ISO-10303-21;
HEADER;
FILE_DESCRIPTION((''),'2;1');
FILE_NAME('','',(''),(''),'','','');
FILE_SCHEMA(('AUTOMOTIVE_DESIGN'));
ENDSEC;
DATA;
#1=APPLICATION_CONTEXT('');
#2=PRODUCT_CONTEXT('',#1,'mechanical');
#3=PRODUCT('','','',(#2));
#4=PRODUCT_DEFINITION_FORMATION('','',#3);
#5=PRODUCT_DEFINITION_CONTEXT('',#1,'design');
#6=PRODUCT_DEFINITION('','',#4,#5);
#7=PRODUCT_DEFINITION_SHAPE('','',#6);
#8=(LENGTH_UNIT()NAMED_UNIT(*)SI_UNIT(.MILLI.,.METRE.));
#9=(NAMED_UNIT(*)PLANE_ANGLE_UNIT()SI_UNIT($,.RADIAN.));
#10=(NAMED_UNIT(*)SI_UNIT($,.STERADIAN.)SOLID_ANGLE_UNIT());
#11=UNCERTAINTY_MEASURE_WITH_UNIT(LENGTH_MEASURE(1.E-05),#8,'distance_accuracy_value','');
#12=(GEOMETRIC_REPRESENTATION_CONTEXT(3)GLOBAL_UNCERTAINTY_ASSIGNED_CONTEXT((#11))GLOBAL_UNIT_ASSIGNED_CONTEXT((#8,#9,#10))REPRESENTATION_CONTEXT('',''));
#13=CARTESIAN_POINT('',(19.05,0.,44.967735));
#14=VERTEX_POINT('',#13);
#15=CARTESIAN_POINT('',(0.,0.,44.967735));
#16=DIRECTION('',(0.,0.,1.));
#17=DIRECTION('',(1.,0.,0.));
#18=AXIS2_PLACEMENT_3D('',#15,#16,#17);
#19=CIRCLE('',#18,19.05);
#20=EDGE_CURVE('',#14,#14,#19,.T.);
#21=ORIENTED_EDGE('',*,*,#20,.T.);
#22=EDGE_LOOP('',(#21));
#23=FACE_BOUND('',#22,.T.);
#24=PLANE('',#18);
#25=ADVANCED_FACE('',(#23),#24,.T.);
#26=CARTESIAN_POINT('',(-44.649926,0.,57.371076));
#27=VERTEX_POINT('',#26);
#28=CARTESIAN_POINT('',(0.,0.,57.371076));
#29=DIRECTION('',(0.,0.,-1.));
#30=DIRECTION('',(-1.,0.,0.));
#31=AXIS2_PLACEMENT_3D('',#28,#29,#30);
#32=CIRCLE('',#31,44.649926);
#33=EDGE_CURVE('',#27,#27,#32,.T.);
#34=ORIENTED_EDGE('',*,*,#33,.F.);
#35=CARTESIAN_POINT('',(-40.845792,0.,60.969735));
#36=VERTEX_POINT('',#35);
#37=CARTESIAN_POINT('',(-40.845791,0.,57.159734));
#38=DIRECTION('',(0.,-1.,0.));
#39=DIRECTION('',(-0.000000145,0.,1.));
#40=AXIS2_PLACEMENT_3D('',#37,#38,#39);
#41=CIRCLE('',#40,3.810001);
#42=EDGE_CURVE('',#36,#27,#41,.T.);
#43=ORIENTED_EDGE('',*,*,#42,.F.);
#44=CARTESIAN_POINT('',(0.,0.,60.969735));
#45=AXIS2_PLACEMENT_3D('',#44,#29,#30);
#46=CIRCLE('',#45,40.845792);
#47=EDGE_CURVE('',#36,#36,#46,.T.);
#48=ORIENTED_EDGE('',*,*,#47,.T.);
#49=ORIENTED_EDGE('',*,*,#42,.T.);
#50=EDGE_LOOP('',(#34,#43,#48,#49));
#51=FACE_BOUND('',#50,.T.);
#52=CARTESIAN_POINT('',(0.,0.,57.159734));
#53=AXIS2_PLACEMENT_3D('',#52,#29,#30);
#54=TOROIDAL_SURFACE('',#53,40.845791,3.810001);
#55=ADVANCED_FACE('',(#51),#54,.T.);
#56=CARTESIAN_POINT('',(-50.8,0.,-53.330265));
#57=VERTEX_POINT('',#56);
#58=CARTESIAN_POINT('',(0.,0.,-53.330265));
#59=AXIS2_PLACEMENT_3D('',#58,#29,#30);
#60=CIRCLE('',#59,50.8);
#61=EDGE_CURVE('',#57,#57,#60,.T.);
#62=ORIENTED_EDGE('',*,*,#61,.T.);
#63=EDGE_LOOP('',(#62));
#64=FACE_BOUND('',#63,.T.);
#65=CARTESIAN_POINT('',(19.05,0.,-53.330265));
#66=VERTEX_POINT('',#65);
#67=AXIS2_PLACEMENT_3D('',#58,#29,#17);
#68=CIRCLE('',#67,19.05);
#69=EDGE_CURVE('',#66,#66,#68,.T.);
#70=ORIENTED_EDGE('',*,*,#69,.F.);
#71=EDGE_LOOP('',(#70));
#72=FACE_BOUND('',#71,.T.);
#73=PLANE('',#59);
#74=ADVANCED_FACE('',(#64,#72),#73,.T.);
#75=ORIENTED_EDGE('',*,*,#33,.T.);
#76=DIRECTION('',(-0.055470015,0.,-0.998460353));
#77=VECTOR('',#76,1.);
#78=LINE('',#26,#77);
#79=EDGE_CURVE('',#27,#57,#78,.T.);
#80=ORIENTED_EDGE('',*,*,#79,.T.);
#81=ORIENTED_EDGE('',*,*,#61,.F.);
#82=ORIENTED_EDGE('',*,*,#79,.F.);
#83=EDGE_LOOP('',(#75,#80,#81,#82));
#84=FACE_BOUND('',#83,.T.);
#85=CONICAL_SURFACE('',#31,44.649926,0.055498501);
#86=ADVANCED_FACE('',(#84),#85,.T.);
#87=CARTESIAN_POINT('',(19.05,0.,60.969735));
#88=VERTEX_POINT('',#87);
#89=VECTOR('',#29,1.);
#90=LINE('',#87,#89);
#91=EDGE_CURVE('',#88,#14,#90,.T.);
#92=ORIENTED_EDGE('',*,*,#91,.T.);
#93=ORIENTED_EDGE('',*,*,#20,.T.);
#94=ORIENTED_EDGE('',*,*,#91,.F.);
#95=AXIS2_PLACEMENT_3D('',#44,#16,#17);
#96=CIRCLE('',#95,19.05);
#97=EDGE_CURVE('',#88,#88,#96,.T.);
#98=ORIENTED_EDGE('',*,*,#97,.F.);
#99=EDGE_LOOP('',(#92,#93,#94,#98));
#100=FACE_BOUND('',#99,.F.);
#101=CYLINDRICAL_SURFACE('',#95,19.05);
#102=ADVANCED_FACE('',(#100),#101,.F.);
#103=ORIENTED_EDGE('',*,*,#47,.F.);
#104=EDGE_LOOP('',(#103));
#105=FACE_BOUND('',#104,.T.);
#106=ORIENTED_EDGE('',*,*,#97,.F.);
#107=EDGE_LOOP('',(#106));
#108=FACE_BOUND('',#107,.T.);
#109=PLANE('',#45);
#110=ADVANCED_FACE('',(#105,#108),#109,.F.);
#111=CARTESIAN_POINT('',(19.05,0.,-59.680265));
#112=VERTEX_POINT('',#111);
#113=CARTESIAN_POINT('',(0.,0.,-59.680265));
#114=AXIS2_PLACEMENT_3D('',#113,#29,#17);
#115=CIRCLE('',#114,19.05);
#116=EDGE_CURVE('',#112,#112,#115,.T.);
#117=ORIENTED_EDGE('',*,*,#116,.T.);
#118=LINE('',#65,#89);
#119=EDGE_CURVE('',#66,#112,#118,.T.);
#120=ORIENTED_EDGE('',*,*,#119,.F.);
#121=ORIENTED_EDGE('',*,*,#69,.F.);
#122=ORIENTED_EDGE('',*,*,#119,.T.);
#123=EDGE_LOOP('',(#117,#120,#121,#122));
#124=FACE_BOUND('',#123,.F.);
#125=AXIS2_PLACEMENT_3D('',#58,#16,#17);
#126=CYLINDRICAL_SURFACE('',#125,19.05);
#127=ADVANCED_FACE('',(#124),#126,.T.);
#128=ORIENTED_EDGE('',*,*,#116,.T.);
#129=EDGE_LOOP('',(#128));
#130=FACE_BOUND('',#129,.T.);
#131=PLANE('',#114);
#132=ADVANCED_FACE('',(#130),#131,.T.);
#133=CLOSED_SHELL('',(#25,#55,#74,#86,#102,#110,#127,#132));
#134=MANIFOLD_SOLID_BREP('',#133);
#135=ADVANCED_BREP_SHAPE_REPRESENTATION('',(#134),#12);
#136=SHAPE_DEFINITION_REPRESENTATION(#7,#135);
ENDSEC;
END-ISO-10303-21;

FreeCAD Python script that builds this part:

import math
import FreeCAD as App
import Part
import Sketcher
from FreeCAD import Vector
Q = App.Units.Quantity

doc = App.newDocument("Part")
body = doc.addObject("PartDesign::Body", "Body")

sketch1 = body.newObject("Sketcher::SketchObject", "Sketch")
sketch1.AttachmentSupport = (doc.getObject("XZ_Plane"), [""])
sketch1.MapMode = "FlatFace"
sketch1.addGeometry([
    Part.LineSegment(Vector(0, -53.330265, 0), Vector(0, 60.969735, 0)),
    Part.LineSegment(Vector(0, 60.969735, 0), Vector(-40.845792, 60.969735, 0)),
    Part.ArcOfCircle(Part.Circle(Vector(-40.845791, 57.159734, 0), Vector(0, 0, 1), 3.810001), math.radians(90.000008), math.radians(176.820157)),
    Part.LineSegment(Vector(-44.649926, 57.371076, 0), Vector(-50.8, -53.330265, 0)),
    Part.LineSegment(Vector(-50.8, -53.330265, 0), Vector(0, -53.330265, 0)),
], False)
sketch1.addConstraint([
    Sketcher.Constraint("Coincident", 0, 2, 1, 1),
    Sketcher.Constraint("Tangent", 1, 2, 2, 1),
    Sketcher.Constraint("Tangent", 2, 2, 3, 1),
    Sketcher.Constraint("Coincident", 3, 2, 4, 1),
    Sketcher.Constraint("Coincident", 4, 2, 0, 1),
    Sketcher.Constraint("Vertical", 0),
    Sketcher.Constraint("Horizontal", 1),
    Sketcher.Constraint("Horizontal", 4),
    Sketcher.Constraint("PointOnObject", 0, 2, -2),
    Sketcher.Constraint("DistanceX", 4, 1, 4, 2, Q("2 in")),
    Sketcher.Constraint("Radius", 2, Q("0.15 in")),
    Sketcher.Constraint("DistanceY", 0, 1, 0, 2, Q("4.5 in")),
    Sketcher.Constraint("DistanceX", 1, 2, 1, 1, 40.845792),
    Sketcher.Constraint("DistanceY", -1, 1, 2, 3, 57.159734),
])
revolution = body.newObject("PartDesign::Revolution", "Revolution")
revolution.Profile = sketch1
revolution.ReferenceAxis = (sketch1, ["V_Axis"])
revolution.Angle = 360

sketch2 = body.newObject("Sketcher::SketchObject", "Sketch001")
sketch2.AttachmentSupport = (doc.getObject("XY_Plane"), [""])
sketch2.MapMode = "FlatFace"
sketch2.AttachmentOffset = App.Placement(Vector(0, 0, -53.330265), App.Rotation())
sketch2.addGeometry(Part.Circle(Vector(0, 0, 0), Vector(0, 0, 1), 19.05), False)
sketch2.addConstraint([
    Sketcher.Constraint("Coincident", 0, 3, -1, 1),
    Sketcher.Constraint("Diameter", 0, Q("1.5 in")),
])
pad1 = body.newObject("PartDesign::Pad", "Pad")
pad1.Profile = sketch2
pad1.Length = Q("0.25 in")
pad1.Reversed = True

sketch3 = body.newObject("Sketcher::SketchObject", "Sketch002")
sketch3.AttachmentSupport = (doc.getObject("XY_Plane"), [""])
sketch3.MapMode = "FlatFace"
sketch3.AttachmentOffset = App.Placement(Vector(0, 0, 60.969735), App.Rotation())
sketch3.addGeometry(Part.Circle(Vector(0, 0, 0), Vector(0, 0, 1), 19.05), False)
sketch3.addConstraint([
    Sketcher.Constraint("Coincident", 0, 3, -1, 1),
    Sketcher.Constraint("Diameter", 0, Q("1.5 in")),
])
pocket1 = body.newObject("PartDesign::Pocket", "Pocket")
pocket1.Profile = sketch3
pocket1.Length = Q("0.63 in")

doc.recompute()
